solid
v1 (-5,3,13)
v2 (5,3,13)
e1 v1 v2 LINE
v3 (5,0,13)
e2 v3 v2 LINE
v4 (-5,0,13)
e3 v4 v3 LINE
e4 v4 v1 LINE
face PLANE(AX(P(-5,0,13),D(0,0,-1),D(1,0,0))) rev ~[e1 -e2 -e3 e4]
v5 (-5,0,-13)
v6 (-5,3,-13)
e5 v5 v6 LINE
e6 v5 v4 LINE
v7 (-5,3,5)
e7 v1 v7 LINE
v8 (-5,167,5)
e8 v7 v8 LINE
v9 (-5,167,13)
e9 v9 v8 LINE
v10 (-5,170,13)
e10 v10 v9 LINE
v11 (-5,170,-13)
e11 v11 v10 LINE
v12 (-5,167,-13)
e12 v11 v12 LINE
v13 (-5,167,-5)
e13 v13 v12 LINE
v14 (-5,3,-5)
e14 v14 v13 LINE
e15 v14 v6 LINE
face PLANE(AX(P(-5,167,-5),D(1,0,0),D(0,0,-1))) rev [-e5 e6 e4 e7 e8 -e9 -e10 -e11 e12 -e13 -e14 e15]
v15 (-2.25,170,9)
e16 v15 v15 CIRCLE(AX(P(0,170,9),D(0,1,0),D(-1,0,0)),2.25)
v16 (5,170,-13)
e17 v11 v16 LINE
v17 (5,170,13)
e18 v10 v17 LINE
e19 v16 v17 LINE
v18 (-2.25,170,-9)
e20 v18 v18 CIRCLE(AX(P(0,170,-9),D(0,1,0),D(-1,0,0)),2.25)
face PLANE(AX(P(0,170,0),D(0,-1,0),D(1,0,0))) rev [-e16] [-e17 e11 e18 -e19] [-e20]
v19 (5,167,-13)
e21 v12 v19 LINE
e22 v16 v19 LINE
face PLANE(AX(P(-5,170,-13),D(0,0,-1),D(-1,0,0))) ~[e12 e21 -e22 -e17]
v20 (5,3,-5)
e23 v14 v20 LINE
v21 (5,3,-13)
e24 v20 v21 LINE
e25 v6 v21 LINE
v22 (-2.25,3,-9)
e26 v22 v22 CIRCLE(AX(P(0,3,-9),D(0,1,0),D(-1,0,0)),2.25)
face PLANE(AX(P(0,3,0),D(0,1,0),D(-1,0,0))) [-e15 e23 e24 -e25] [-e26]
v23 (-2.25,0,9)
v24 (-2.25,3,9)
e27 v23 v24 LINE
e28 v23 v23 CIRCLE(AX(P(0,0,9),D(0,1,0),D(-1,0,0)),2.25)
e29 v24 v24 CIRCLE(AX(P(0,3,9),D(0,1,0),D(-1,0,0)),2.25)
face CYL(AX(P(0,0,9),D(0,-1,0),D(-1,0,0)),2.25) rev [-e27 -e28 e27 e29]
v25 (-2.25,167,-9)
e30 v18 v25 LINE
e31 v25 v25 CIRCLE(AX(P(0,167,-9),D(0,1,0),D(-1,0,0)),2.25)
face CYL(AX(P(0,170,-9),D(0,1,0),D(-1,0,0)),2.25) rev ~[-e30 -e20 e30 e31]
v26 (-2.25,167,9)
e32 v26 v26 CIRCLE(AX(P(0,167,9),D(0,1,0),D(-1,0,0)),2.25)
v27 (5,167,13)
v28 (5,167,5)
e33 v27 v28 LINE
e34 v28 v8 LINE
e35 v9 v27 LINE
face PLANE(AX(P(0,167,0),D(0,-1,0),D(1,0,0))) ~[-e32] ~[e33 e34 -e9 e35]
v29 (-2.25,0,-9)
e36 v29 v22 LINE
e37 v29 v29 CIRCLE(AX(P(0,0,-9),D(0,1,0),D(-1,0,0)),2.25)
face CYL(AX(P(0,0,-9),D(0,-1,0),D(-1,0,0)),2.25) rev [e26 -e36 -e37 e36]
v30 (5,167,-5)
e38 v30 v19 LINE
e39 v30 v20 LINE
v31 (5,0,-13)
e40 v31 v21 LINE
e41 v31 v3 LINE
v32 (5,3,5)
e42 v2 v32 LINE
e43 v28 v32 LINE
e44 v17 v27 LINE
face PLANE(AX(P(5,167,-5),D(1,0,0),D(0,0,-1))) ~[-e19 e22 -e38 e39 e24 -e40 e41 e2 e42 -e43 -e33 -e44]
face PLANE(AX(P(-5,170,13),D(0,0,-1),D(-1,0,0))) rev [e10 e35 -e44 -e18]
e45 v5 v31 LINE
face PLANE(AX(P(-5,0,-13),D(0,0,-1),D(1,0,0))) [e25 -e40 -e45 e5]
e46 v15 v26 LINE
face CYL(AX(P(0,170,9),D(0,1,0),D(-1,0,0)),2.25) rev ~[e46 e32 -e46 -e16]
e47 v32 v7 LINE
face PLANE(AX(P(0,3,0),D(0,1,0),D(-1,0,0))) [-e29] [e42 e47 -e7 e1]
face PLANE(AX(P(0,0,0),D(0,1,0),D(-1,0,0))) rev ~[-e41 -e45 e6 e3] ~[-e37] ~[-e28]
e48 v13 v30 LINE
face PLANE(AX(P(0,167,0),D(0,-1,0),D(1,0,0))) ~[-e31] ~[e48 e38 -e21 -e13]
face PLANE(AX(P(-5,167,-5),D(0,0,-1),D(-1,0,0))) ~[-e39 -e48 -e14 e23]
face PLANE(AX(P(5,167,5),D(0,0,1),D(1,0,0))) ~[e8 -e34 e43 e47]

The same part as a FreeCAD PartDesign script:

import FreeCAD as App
import Part
import Sketcher


def add_polygon(sketch, points):
    """Adds a closed chain of lines whose ends are joined by coincident constraints."""
    first, n = sketch.GeometryCount, len(points)
    for a, b in zip(points, points[1:] + points[:1]):
        sketch.addGeometry(Part.LineSegment(App.Vector(*a, 0), App.Vector(*b, 0)), False)
    for i in range(n):
        sketch.addConstraint(Sketcher.Constraint("Coincident", first + i, 2, first + (i + 1) % n, 1))

doc = App.newDocument("Part")
body = doc.addObject("PartDesign::Body", "Body")

# Sketch on XZ plane
sketch1 = doc.addObject("Sketcher::SketchObject", "Sketch")
body.addObject(sketch1)
sketch1.AttachmentSupport = (doc.XZ_Plane, [""])
sketch1.MapMode = "FlatFace"
add_polygon(sketch1, [(-5, 13), (5, 13), (5, -13), (-5, -13)])  # lines 0-3
sketch1.addGeometry(Part.Circle(App.Vector(0, -9, 0), App.Vector(0, 0, 1), 2.2), False)  # 4
sketch1.addGeometry(Part.Circle(App.Vector(0, 9, 0), App.Vector(0, 0, 1), 2.2), False)  # 5
sketch1.addConstraint([
    Sketcher.Constraint("Horizontal", 0),
    Sketcher.Constraint("Vertical", 1),
    Sketcher.Constraint("Horizontal", 2),
    Sketcher.Constraint("Vertical", 3),
    Sketcher.Constraint("Equal", 4, 5),
    Sketcher.Constraint("Symmetric", 4, 3, 5, 3, -1, 1),
    Sketcher.Constraint("Symmetric", 0, 2, 2, 2, -1, 1),
    Sketcher.Constraint("PointOnObject", 4, 3, -2),
    Sketcher.Constraint("Diameter", 4, 4.5),
    Sketcher.Constraint("DistanceX", 0, 1, 0, 2, 10.0),
    Sketcher.Constraint("DistanceY", 5, 3, 0, 2, 4.0),
    Sketcher.Constraint("DistanceY", 1, 2, 1, 1, 26.0),
])
pad1 = doc.addObject("PartDesign::Pad", "Pad")
body.addObject(pad1)
pad1.Profile = sketch1
pad1.Length = 3
pad1.Reversed = True

# Sketch on XZ plane
sketch2 = doc.addObject("Sketcher::SketchObject", "Sketch001")
body.addObject(sketch2)
sketch2.AttachmentSupport = (doc.XZ_Plane, [""])
sketch2.MapMode = "FlatFace"
sketch2.AttachmentOffset = App.Placement(App.Vector(0, 0, -3), App.Rotation())
add_polygon(sketch2, [(5, -5), (-5, -5), (-5, 5), (5, 5)])  # lines 0-3
sketch2.addConstraint([
    Sketcher.Constraint("Horizontal", 0),
    Sketcher.Constraint("Vertical", 1),
    Sketcher.Constraint("Horizontal", 2),
    Sketcher.Constraint("Vertical", 3),
    Sketcher.Constraint("Symmetric", 0, 2, 2, 2, -1, 1),
    Sketcher.Constraint("Equal", 2, 1),
    Sketcher.Constraint("DistanceX", 0, 2, 0, 1, 10.0),
])
pad2 = doc.addObject("PartDesign::Pad", "Pad001")
body.addObject(pad2)
pad2.Profile = sketch2
pad2.Length = 82
pad2.Reversed = True
doc.recompute()

datumplane = doc.addObject("PartDesign::Plane", "DatumPlane")
body.addObject(datumplane)
datumplane.AttachmentSupport = (doc.XZ_Plane, [""])
datumplane.MapMode = "FlatFace"
datumplane.AttachmentOffset = App.Placement(App.Vector(0, 0, -85), App.Rotation())
mirrored = doc.addObject("PartDesign::Mirrored", "Mirrored")
body.addObject(mirrored)
mirrored.Originals = [pad1, pad2]
mirrored.MirrorPlane = (datumplane, [""])
body.Tip = mirrored

doc.recompute()
